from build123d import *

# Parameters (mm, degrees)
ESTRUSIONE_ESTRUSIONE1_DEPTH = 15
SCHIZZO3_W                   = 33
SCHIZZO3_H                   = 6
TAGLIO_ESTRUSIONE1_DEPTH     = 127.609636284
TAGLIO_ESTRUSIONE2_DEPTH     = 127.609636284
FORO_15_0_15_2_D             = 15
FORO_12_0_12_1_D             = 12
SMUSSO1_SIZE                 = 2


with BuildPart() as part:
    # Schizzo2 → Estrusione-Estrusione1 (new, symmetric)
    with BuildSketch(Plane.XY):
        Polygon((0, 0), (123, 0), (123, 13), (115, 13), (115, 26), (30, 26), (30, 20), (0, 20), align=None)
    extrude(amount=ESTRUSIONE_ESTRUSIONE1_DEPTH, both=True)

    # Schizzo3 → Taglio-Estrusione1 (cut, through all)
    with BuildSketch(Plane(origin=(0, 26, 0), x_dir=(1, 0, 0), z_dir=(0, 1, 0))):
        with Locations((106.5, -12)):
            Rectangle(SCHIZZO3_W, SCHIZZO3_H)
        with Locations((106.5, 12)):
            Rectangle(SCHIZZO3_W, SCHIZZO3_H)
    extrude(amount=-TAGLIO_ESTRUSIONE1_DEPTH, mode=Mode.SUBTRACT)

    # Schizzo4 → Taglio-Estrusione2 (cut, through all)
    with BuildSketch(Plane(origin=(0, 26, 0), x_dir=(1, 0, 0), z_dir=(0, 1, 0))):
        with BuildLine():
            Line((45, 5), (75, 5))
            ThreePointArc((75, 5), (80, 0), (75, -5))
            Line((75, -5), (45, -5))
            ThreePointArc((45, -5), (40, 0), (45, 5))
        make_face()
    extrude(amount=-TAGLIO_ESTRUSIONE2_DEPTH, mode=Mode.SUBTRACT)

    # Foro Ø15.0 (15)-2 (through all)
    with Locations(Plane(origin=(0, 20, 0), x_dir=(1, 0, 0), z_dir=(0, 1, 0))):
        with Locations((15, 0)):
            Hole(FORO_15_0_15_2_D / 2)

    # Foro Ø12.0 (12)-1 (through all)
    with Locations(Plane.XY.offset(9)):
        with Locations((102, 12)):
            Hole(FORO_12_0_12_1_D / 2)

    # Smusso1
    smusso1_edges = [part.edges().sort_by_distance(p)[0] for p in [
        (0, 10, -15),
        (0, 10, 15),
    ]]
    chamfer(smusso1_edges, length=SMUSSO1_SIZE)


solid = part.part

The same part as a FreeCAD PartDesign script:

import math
import FreeCAD as App
import Part
import Sketcher


def edges_at(feature, points):
    """Names of the edges that pass closest to the given points."""
    edges = feature.Shape.Edges
    near = lambda p: min(range(len(edges)), key=lambda i: edges[i].distToShape(Part.Vertex(*p))[0])
    return sorted({f"Edge{near(p) + 1}" for p in points})


def add_polygon(sketch, points):
    """Adds a closed chain of lines whose ends are joined by coincident constraints."""
    first, n = sketch.GeometryCount, len(points)
    for a, b in zip(points, points[1:] + points[:1]):
        sketch.addGeometry(Part.LineSegment(App.Vector(*a, 0), App.Vector(*b, 0)), False)
    for i in range(n):
        sketch.addConstraint(Sketcher.Constraint("Coincident", first + i, 2, first + (i + 1) % n, 1))

doc = App.newDocument("Part")
params = doc.addObject("Spreadsheet::Sheet", "Params")
for row, (alias, value) in enumerate([
    ("sketch1_width", "123 mm"),
    ("sketch1_width2", "8 mm"),
    ("sketch1_width3", "85 mm"),
    ("sketch1_height", "13 mm"),
    ("sketch1_height2", "6 mm"),
    ("pad1_length", "30 mm"),
    ("sketch2_width", "33 mm"),
    ("sketch2_height", "6 mm"),
    ("sketch3_radius", "5 mm"),
    ("sketch3_width", "30 mm"),
    ("sketch4_diameter", "15 mm"),
    ("hole_diameter", "15 mm"),
    ("sketch5_diameter", "12 mm"),
    ("hole2_diameter", "12 mm"),
    ("chamfer_size", "2 mm"),
], start=1):
    params.set(f"A{row}", alias)
    params.set(f"B{row}", "=" + value)
    params.setAlias(f"B{row}", alias)

body = doc.addObject("PartDesign::Body", "Body")

sketch1 = body.newObject("Sketcher::SketchObject", "Sketch")
sketch1.AttachmentSupport = (doc.getObject("XY_Plane"), [""])
sketch1.MapMode = "FlatFace"
add_polygon(sketch1, [(0, 0), (123, 0), (123, 13), (115, 13), (115, 26), (30, 26), (30, 20), (0, 20)])
sketch1.addConstraint([
    Sketcher.Constraint("Horizontal", 0),
    Sketcher.Constraint("Vertical", 1),
    Sketcher.Constraint("Horizontal", 2),
    Sketcher.Constraint("Vertical", 3),
    Sketcher.Constraint("Horizontal", 4),
    Sketcher.Constraint("Vertical", 5),
    Sketcher.Constraint("Horizontal", 6),
    Sketcher.Constraint("Vertical", 7),
    Sketcher.Constraint("Coincident", 7, 2, -1, 1),
    Sketcher.Constraint("Equal", 1, 3),
    Sketcher.Constraint("DistanceX", 0, 1, 0, 2, 123.0),
    Sketcher.Constraint("DistanceX", 2, 2, 2, 1, 8.0),
    Sketcher.Constraint("DistanceX", 4, 2, 4, 1, 85.0),
    Sketcher.Constraint("DistanceY", 1, 1, 1, 2, 13.0),
    Sketcher.Constraint("DistanceY", 5, 2, 5, 1, 6.0),
])
sketch1.setExpression("Constraints[18]", "Params.sketch1_width")
sketch1.setExpression("Constraints[19]", "Params.sketch1_width2")
sketch1.setExpression("Constraints[20]", "Params.sketch1_width3")
sketch1.setExpression("Constraints[21]", "Params.sketch1_height")
sketch1.setExpression("Constraints[22]", "Params.sketch1_height2")
pad1 = body.newObject("PartDesign::Pad", "Pad")
pad1.Profile = sketch1
pad1.setExpression("Length", "Params.pad1_length")
pad1.Midplane = True

sketch2 = body.newObject("Sketcher::SketchObject", "Sketch001")
sketch2.AttachmentSupport = (doc.getObject("XZ_Plane"), [""])
sketch2.MapMode = "FlatFace"
sketch2.AttachmentOffset = App.Placement(App.Vector(0, 0, -26), App.Rotation())
add_polygon(sketch2, [(90, 9), (90, 15), (123, 15), (123, 9)])
add_polygon(sketch2, [(90, -15), (90, -9), (123, -9), (123, -15)])
sketch2.addConstraint([
    Sketcher.Constraint("Vertical", 0),
    Sketcher.Constraint("Horizontal", 1),
    Sketcher.Constraint("Vertical", 2),
    Sketcher.Constraint("Horizontal", 3),
    Sketcher.Constraint("Vertical", 4),
    Sketcher.Constraint("Horizontal", 5),
    Sketcher.Constraint("Vertical", 6),
    Sketcher.Constraint("Horizontal", 7),
    Sketcher.Constraint("Symmetric", 3, 2, 4, 2, -1),
    Sketcher.Constraint("Symmetric", 1, 2, 6, 2, -1),
    Sketcher.Constraint("DistanceX", 1, 1, 1, 2, 33.0),
    Sketcher.Constraint("DistanceY", 0, 1, 0, 2, 6.0),
    Sketcher.Constraint("DistanceX", -1, 1, 0, 2, 90.0),
    Sketcher.Constraint("DistanceY", -1, 1, 0, 2, 15.0),
])
sketch2.setExpression("Constraints[18]", "Params.sketch2_width")
sketch2.setExpression("Constraints[19]", "Params.sketch2_height")
pocket1 = body.newObject("PartDesign::Pocket", "Pocket")
pocket1.Profile = sketch2
pocket1.Type = "ThroughAll"
pocket1.Reversed = True

sketch3 = body.newObject("Sketcher::SketchObject", "Sketch002")
sketch3.AttachmentSupport = (doc.getObject("XZ_Plane"), [""])
sketch3.MapMode = "FlatFace"
sketch3.AttachmentOffset = App.Placement(App.Vector(0, 0, -26), App.Rotation())
sketch3.addGeometry([
    Part.LineSegment(App.Vector(75, -5, 0), App.Vector(45, -5, 0)),
    Part.ArcOfCircle(Part.Circle(App.Vector(45, 0, 0), App.Vector(0, 0, 1), 5), math.radians(90), math.radians(270)),
    Part.LineSegment(App.Vector(45, 5, 0), App.Vector(75, 5, 0)),
    Part.ArcOfCircle(Part.Circle(App.Vector(75, 0, 0), App.Vector(0, 0, 1), 5), math.radians(-90), math.radians(90)),
], False)
sketch3.addConstraint([
    Sketcher.Constraint("Tangent", 0, 2, 1, 2),
    Sketcher.Constraint("Tangent", 1, 1, 2, 1),
    Sketcher.Constraint("Tangent", 2, 2, 3, 2),
    Sketcher.Constraint("Tangent", 3, 1, 0, 1),
    Sketcher.Constraint("Horizontal", 0),
    Sketcher.Constraint("Horizontal", 2),
    Sketcher.Constraint("PointOnObject", 1, 3, -1),
    Sketcher.Constraint("Radius", 1, 5.0),
    Sketcher.Constraint("DistanceX", 0, 2, 0, 1, 30.0),
    Sketcher.Constraint("DistanceX", -1, 1, 1, 3, 45.0),
])
sketch3.setExpression("Constraints[7]", "Params.sketch3_radius")
sketch3.setExpression("Constraints[8]", "Params.sketch3_width")
pocket2 = body.newObject("PartDesign::Pocket", "Pocket001")
pocket2.Profile = sketch3
pocket2.Type = "ThroughAll"
pocket2.Reversed = True

sketch4 = body.newObject("Sketcher::SketchObject", "Sketch003")
sketch4.AttachmentSupport = (doc.getObject("XZ_Plane"), [""])
sketch4.MapMode = "FlatFace"
sketch4.AttachmentOffset = App.Placement(App.Vector(0, 0, -20), App.Rotation())
sketch4.addGeometry(Part.Circle(App.Vector(15, 0, 0), App.Vector(0, 0, 1), 8), False)
sketch4.addConstraint([
    Sketcher.Constraint("PointOnObject", 0, 3, -1),
    Sketcher.Constraint("Diameter", 0, 15.0),
    Sketcher.Constraint("DistanceX", -1, 1, 0, 3, 15.0),
])
sketch4.setExpression("Constraints[1]", "Params.sketch4_diameter")
doc.recompute()
hole = body.newObject("PartDesign::Hole", "Hole")
hole.Profile = sketch4
hole.ThreadType = "None"
hole.setExpression("Diameter", "Params.hole_diameter")
hole.DepthType = "ThroughAll"
hole.Reversed = True

sketch5 = body.newObject("Sketcher::SketchObject", "Sketch004")
sketch5.AttachmentSupport = (doc.getObject("XY_Plane"), [""])
sketch5.MapMode = "FlatFace"
sketch5.AttachmentOffset = App.Placement(App.Vector(0, 0, 9), App.Rotation())
sketch5.addGeometry(Part.Circle(App.Vector(102, 12, 0), App.Vector(0, 0, 1), 6), False)
sketch5.addConstraint([
    Sketcher.Constraint("Diameter", 0, 12.0),
    Sketcher.Constraint("DistanceX", -1, 1, 0, 3, 102.0),
    Sketcher.Constraint("DistanceY", -1, 1, 0, 3, 12.0),
])
sketch5.setExpression("Constraints[0]", "Params.sketch5_diameter")
doc.recompute()
hole2 = body.newObject("PartDesign::Hole", "Hole001")
hole2.Profile = sketch5
hole2.ThreadType = "None"
hole2.setExpression("Diameter", "Params.hole2_diameter")
hole2.DepthType = "ThroughAll"
doc.recompute()

chamfer = body.newObject("PartDesign::Chamfer", "Chamfer")
chamfer.Base = (hole2, edges_at(hole2, [(0, 10, -15), (0, 10, 15)]))
chamfer.setExpression("Size", "Params.chamfer_size")

doc.recompute()
